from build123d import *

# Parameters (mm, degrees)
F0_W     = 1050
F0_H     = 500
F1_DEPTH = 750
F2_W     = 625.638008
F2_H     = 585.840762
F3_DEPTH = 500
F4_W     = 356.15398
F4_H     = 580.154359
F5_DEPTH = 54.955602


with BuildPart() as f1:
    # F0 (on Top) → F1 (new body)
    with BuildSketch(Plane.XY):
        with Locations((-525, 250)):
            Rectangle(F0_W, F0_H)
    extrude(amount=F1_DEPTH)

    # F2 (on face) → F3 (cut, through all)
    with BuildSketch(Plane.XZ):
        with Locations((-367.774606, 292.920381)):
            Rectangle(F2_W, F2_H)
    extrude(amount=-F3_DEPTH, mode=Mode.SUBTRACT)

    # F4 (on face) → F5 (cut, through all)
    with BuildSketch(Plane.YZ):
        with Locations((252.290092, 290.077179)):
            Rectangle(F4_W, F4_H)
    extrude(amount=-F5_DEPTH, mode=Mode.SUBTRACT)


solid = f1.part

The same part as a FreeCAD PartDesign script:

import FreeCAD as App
import Part
import Sketcher
from FreeCAD import Vector


def add_polygon(sketch, points):
    """Adds a closed chain of lines whose ends are joined by coincident constraints."""
    first, n = sketch.GeometryCount, len(points)
    for a, b in zip(points, points[1:] + points[:1]):
        sketch.addGeometry(Part.LineSegment(App.Vector(*a, 0), App.Vector(*b, 0)), False)
    for i in range(n):
        sketch.addConstraint(Sketcher.Constraint("Coincident", first + i, 2, first + (i + 1) % n, 1))

doc = App.newDocument("Part")
body = doc.addObject("PartDesign::Body", "Body")

# Sketch on XY plane
sketch1 = body.newObject("Sketcher::SketchObject", "Sketch")
sketch1.AttachmentSupport = (doc.getObject("XY_Plane"), [""])
sketch1.MapMode = "FlatFace"
add_polygon(sketch1, [(-1050, 500), (-1050, 0), (0, 0), (0, 500)])  # lines 0-3
sketch1.addConstraint(Sketcher.Constraint("Vertical", 0))
sketch1.addConstraint(Sketcher.Constraint("Horizontal", 1))
sketch1.addConstraint(Sketcher.Constraint("Vertical", 2))
sketch1.addConstraint(Sketcher.Constraint("Horizontal", 3))
sketch1.addConstraint(Sketcher.Constraint("Coincident", 1, 2, -1, 1))
sketch1.addConstraint(Sketcher.Constraint("DistanceX", 1, 1, 1, 2, 1050.0))
sketch1.addConstraint(Sketcher.Constraint("DistanceY", 0, 2, 0, 1, 500.0))
pad1 = body.newObject("PartDesign::Pad", "Pad")
pad1.Profile = sketch1
pad1.Length = 750

# Sketch on XZ plane
sketch2 = body.newObject("Sketcher::SketchObject", "Sketch001")
sketch2.AttachmentSupport = (doc.getObject("XZ_Plane"), [""])
sketch2.MapMode = "FlatFace"
add_polygon(sketch2, [(-681, 586), (-681, 0), (-55, 0), (-55, 586)])  # lines 0-3
sketch2.addConstraint(Sketcher.Constraint("Vertical", 0))
sketch2.addConstraint(Sketcher.Constraint("Horizontal", 1))
sketch2.addConstraint(Sketcher.Constraint("Vertical", 2))
sketch2.addConstraint(Sketcher.Constraint("Horizontal", 3))
sketch2.addConstraint(Sketcher.Constraint("PointOnObject", 0, 2, -1))
sketch2.addConstraint(Sketcher.Constraint("DistanceX", 1, 1, 1, 2, 625.638008))
sketch2.addConstraint(Sketcher.Constraint("DistanceY", 0, 2, 0, 1, 585.840762))
sketch2.addConstraint(Sketcher.Constraint("DistanceX", 0, 2, -1, 1, 680.59361))
pocket1 = body.newObject("PartDesign::Pocket", "Pocket")
pocket1.Profile = sketch2
pocket1.Type = "ThroughAll"

# Sketch on YZ plane
sketch3 = body.newObject("Sketcher::SketchObject", "Sketch002")
sketch3.AttachmentSupport = (doc.getObject("YZ_Plane"), [""])
sketch3.MapMode = "FlatFace"
add_polygon(sketch3, [(74, 580), (74, 0), (430, 0), (430, 580)])  # lines 0-3
sketch3.addConstraint(Sketcher.Constraint("Vertical", 0))
sketch3.addConstraint(Sketcher.Constraint("Horizontal", 1))
sketch3.addConstraint(Sketcher.Constraint("Vertical", 2))
sketch3.addConstraint(Sketcher.Constraint("Horizontal", 3))
sketch3.addConstraint(Sketcher.Constraint("PointOnObject", 0, 2, -1))
sketch3.addConstraint(Sketcher.Constraint("DistanceX", 1, 1, 1, 2, 356.15398))
sketch3.addConstraint(Sketcher.Constraint("DistanceY", 0, 2, 0, 1, 580.154359))
sketch3.addConstraint(Sketcher.Constraint("DistanceX", -1, 1, 1, 2, 430.367082))
pocket2 = body.newObject("PartDesign::Pocket", "Pocket001")
pocket2.Profile = sketch3
pocket2.Length = 54.955602

doc.recompute()
